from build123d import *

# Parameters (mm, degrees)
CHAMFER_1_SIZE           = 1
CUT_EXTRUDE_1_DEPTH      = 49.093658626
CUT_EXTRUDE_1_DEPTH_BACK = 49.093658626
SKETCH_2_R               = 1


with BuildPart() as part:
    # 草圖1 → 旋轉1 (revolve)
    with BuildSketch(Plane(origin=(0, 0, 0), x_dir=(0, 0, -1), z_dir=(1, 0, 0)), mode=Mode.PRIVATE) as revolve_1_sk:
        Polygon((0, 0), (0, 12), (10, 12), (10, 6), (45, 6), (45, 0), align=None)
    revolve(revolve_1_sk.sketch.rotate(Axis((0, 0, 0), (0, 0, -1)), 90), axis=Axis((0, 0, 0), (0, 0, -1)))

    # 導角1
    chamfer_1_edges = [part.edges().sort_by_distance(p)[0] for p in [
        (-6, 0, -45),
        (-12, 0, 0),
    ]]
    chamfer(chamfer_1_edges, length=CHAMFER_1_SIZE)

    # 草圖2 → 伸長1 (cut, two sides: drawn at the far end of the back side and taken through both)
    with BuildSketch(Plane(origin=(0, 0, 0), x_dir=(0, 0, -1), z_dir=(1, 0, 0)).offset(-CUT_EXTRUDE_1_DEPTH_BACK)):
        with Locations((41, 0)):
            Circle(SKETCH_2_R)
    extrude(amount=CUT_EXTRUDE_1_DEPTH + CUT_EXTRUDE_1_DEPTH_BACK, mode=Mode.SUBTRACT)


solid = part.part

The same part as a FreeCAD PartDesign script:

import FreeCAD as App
import Part
import Sketcher

V = App.Vector
Q = App.Units.Quantity


def edges_at(feature, points):
    """Names of the edges that pass closest to the given points."""
    edges = feature.Shape.Edges
    near = lambda p: min(range(len(edges)), key=lambda i: edges[i].distToShape(Part.Vertex(*p))[0])
    return sorted({f"Edge{near(p) + 1}" for p in points})


def add_polygon(sketch, points):
    """Adds a closed chain of lines whose ends are joined by coincident constraints."""
    first, n = sketch.GeometryCount, len(points)
    for a, b in zip(points, points[1:] + points[:1]):
        sketch.addGeometry(Part.LineSegment(App.Vector(*a, 0), App.Vector(*b, 0)), False)
    for i in range(n):
        sketch.addConstraint(Sketcher.Constraint("Coincident", first + i, 2, first + (i + 1) % n, 1))

doc = App.newDocument("Part")
body = doc.addObject("PartDesign::Body", "Body")

# Sketch on YZ plane
sketch1 = doc.addObject("Sketcher::SketchObject", "Sketch")
body.addObject(sketch1)
sketch1.AttachmentSupport = (doc.YZ_Plane, [""])
sketch1.MapMode = "FlatFace"
add_polygon(sketch1, [(12, 0), (0, 0), (0, -45), (6, -45), (6, -10), (12, -10)])  # lines 0-5
sketch1.addConstraint(Sketcher.Constraint("Horizontal", 0))
sketch1.addConstraint(Sketcher.Constraint("Vertical", 1))
sketch1.addConstraint(Sketcher.Constraint("Horizontal", 2))
sketch1.addConstraint(Sketcher.Constraint("Vertical", 3))
sketch1.addConstraint(Sketcher.Constraint("Horizontal", 4))
sketch1.addConstraint(Sketcher.Constraint("Vertical", 5))
sketch1.addConstraint(Sketcher.Constraint("Coincident", 0, 2, -1, 1))
sketch1.addConstraint(Sketcher.Constraint("Equal", 2, 4))
sketch1.addConstraint(Sketcher.Constraint("DistanceX", 0, 2, 0, 1, Q("12 mm")))
sketch1.addConstraint(Sketcher.Constraint("DistanceY", 1, 2, 1, 1, Q("45 mm")))
sketch1.addConstraint(Sketcher.Constraint("DistanceY", 3, 1, 3, 2, Q("35 mm")))
revolution = doc.addObject("PartDesign::Revolution", "Revolution")
body.addObject(revolution)
revolution.Profile = sketch1
revolution.ReferenceAxis = (sketch1, ["V_Axis"])
revolution.Angle = 360
doc.recompute()

chamfer = doc.addObject("PartDesign::Chamfer", "Chamfer")
body.addObject(chamfer)
chamfer.Base = (revolution, edges_at(revolution, [(-6, 0, -45), (-12, 0, 0)]))
chamfer.Size = 1

# Sketch on YZ plane
sketch2 = doc.addObject("Sketcher::SketchObject", "Sketch001")
body.addObject(sketch2)
sketch2.AttachmentSupport = (doc.YZ_Plane, [""])
sketch2.MapMode = "FlatFace"
sketch2.addGeometry(Part.Circle(V(0, -41, 0), V(0, 0, 1), 1), False)
sketch2.addConstraint(Sketcher.Constraint("PointOnObject", 0, 3, -2))
sketch2.addConstraint(Sketcher.Constraint("Diameter", 0, Q("2 mm")))
sketch2.addConstraint(Sketcher.Constraint("DistanceY", 0, 3, -1, 1, Q("41 mm")))
pocket1 = doc.addObject("PartDesign::Pocket", "Pocket")
body.addObject(pocket1)
pocket1.Profile = sketch2
pocket1.Type = "ThroughAll"
pocket1.Midplane = True

doc.recompute()
